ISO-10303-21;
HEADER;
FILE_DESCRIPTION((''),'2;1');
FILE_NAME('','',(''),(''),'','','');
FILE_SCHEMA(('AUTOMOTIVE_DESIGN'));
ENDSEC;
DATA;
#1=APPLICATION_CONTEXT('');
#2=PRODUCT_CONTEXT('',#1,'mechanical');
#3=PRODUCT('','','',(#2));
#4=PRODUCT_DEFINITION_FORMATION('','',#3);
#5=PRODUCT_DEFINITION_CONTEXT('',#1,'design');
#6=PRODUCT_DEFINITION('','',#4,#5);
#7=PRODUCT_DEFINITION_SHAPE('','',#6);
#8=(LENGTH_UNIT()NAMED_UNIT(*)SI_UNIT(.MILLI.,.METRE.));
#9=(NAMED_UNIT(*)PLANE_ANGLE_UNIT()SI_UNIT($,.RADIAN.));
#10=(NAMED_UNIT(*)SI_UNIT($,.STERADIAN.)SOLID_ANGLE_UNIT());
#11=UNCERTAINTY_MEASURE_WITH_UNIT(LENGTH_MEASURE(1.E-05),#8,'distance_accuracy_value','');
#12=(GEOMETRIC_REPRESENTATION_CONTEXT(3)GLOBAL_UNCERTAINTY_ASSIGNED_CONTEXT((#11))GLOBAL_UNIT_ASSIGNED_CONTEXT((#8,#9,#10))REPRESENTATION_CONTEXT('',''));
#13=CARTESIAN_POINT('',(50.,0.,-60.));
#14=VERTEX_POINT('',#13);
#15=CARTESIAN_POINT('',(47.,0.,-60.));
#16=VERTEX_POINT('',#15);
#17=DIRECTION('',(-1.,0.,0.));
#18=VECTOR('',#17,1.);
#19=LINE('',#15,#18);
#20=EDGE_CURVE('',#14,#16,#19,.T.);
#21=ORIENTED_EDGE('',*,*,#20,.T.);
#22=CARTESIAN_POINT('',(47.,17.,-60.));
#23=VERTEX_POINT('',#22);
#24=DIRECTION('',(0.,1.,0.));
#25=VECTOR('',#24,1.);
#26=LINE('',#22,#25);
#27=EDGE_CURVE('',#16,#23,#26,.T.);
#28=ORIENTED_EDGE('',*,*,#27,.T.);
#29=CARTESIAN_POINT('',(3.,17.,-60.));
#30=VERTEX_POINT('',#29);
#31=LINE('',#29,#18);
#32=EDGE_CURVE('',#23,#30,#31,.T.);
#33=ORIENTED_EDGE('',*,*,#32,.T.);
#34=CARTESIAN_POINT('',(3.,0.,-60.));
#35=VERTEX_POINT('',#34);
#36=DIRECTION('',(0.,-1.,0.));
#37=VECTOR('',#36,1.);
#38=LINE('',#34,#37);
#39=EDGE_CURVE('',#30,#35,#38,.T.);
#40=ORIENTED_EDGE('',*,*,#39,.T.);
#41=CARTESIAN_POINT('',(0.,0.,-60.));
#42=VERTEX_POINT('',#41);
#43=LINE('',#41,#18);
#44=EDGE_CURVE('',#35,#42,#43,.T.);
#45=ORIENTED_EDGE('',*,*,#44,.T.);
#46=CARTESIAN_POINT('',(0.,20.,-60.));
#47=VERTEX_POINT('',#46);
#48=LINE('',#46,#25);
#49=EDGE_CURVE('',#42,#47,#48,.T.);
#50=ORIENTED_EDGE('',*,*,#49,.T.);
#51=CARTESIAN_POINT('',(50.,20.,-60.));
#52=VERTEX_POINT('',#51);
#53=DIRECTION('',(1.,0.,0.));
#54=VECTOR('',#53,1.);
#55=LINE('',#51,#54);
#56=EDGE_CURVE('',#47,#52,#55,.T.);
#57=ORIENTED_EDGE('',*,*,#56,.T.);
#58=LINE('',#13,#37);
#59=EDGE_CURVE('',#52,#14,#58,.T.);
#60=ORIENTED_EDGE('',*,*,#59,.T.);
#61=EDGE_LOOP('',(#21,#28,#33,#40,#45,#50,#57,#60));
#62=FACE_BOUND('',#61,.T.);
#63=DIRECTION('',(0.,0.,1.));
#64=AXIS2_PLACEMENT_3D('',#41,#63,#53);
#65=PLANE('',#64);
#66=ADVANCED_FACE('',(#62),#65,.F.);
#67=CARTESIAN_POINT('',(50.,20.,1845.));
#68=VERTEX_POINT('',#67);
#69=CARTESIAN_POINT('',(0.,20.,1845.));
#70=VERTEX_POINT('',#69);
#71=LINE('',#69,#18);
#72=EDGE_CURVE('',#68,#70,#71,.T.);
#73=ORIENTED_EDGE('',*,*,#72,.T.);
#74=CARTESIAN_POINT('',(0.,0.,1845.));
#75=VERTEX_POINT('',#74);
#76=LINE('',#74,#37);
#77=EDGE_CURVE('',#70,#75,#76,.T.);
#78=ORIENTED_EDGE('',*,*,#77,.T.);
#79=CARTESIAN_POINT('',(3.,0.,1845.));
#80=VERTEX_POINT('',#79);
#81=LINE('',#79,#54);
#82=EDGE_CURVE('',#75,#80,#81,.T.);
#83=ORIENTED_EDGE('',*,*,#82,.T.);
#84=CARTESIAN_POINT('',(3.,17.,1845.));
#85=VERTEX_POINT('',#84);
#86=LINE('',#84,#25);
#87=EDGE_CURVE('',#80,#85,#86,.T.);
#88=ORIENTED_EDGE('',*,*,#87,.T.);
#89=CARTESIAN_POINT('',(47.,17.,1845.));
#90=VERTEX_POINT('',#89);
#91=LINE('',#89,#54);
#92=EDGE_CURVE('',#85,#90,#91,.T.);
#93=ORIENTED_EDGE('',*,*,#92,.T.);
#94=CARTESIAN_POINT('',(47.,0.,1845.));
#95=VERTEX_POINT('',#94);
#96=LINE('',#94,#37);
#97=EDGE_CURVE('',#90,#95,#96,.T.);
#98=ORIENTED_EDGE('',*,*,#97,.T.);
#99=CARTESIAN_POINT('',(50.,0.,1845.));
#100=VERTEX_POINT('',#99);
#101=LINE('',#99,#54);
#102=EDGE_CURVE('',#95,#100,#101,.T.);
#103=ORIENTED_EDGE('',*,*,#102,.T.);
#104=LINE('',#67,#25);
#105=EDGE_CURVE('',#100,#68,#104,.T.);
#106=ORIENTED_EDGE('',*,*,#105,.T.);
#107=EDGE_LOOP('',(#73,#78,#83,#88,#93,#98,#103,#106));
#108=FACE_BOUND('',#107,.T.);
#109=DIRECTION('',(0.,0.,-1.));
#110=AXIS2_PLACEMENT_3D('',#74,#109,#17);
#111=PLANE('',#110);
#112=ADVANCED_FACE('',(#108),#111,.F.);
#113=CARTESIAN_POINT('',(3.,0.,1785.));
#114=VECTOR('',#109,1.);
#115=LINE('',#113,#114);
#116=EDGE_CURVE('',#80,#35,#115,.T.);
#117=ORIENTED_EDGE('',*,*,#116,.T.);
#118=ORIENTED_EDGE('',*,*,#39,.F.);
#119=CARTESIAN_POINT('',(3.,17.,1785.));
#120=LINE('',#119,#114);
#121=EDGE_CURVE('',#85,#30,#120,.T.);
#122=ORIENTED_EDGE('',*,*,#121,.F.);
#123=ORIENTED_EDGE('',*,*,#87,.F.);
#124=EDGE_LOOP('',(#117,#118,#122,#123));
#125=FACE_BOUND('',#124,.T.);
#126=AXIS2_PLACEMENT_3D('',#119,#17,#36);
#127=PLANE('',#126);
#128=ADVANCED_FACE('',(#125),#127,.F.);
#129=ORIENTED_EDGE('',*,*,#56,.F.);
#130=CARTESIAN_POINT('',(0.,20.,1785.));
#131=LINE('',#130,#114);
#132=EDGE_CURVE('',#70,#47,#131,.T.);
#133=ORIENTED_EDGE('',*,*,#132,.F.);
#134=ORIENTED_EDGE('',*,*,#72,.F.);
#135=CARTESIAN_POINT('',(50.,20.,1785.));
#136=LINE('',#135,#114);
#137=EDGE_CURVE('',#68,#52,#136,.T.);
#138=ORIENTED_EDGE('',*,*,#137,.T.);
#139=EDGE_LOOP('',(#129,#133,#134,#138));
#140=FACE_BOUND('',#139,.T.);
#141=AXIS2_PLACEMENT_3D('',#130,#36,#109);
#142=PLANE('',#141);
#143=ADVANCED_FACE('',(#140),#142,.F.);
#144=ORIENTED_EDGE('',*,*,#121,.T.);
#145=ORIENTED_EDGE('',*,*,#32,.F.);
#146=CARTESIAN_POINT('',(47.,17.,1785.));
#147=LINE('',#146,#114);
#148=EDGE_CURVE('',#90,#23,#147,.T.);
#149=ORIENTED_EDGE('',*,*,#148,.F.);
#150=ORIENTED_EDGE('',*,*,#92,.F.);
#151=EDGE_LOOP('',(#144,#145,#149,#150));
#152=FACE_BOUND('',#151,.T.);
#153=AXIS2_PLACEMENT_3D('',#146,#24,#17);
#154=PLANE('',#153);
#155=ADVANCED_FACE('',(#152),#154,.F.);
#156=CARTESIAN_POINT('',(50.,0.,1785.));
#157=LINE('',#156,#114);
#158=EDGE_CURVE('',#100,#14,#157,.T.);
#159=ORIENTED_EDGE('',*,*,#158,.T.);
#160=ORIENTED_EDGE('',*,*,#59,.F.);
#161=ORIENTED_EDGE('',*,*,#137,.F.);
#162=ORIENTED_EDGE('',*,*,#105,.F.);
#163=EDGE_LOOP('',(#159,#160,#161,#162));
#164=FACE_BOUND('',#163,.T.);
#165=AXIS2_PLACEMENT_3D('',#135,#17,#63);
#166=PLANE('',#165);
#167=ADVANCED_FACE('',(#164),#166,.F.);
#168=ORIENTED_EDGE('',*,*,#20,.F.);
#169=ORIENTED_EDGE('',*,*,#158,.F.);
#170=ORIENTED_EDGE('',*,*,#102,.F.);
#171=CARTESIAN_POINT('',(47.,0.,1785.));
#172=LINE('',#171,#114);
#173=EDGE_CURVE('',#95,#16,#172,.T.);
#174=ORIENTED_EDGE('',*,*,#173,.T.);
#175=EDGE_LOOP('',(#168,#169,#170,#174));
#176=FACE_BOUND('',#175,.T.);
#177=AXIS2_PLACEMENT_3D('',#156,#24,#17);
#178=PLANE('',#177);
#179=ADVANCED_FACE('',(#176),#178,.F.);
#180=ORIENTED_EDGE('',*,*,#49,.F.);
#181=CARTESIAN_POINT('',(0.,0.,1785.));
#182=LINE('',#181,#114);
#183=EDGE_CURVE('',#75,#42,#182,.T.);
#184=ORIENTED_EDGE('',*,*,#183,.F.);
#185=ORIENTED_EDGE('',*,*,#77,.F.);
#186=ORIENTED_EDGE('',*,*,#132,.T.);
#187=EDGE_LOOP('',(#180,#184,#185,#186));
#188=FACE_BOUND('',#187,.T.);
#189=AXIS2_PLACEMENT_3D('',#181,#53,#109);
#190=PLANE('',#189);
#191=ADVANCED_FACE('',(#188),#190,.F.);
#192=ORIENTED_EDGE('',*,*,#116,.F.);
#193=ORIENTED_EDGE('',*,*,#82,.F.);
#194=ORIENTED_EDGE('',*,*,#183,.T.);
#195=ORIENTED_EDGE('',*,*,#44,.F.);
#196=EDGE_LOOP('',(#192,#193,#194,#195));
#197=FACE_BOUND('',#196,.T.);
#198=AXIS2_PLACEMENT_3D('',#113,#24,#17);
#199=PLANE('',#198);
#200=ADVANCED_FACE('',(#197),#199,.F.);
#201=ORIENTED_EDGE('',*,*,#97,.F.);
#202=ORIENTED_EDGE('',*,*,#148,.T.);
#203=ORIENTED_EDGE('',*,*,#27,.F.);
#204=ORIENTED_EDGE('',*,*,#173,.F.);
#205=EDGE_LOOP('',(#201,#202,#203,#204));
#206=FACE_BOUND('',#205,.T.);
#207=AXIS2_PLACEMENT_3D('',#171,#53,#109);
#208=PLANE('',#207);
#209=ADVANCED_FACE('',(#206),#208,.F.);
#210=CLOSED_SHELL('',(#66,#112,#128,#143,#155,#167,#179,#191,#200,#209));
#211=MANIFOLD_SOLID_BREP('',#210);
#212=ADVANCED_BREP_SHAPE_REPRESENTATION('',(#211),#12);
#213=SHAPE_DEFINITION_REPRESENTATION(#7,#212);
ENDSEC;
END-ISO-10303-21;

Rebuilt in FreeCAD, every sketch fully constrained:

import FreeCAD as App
import Part
import Sketcher


def add_polygon(sketch, points):
    """Adds a closed chain of lines whose ends are joined by coincident constraints."""
    first, n = sketch.GeometryCount, len(points)
    for a, b in zip(points, points[1:] + points[:1]):
        sketch.addGeometry(Part.LineSegment(App.Vector(*a, 0), App.Vector(*b, 0)), False)
    for i in range(n):
        sketch.addConstraint(Sketcher.Constraint("Coincident", first + i, 2, first + (i + 1) % n, 1))

doc = App.newDocument("Part")
body = doc.addObject("PartDesign::Body", "Body")

sketch1 = doc.addObject("Sketcher::SketchObject", "Sketch")
body.addObject(sketch1)
sketch1.AttachmentSupport = (doc.XY_Plane, [""])
sketch1.MapMode = "FlatFace"
add_polygon(sketch1, [(0, 20), (0, 0), (3, 0), (3, 17), (47, 17), (47, 0), (50, 0), (50, 20)])
sketch1.addConstraint(Sketcher.Constraint("Vertical", 0))
sketch1.addConstraint(Sketcher.Constraint("Horizontal", 1))
sketch1.addConstraint(Sketcher.Constraint("Vertical", 2))
sketch1.addConstraint(Sketcher.Constraint("Horizontal", 3))
sketch1.addConstraint(Sketcher.Constraint("Vertical", 4))
sketch1.addConstraint(Sketcher.Constraint("Horizontal", 5))
sketch1.addConstraint(Sketcher.Constraint("Vertical", 6))
sketch1.addConstraint(Sketcher.Constraint("Horizontal", 7))
sketch1.addConstraint(Sketcher.Constraint("Coincident", 0, 2, -1, 1))
sketch1.addConstraint(Sketcher.Constraint("PointOnObject", 4, 2, -1))
sketch1.addConstraint(Sketcher.Constraint("Equal", 1, 5))
sketch1.addConstraint(Sketcher.Constraint("DistanceX", 1, 1, 1, 2, 3.0))
sketch1.addConstraint(Sketcher.Constraint("DistanceX", 3, 1, 3, 2, 44.0))
sketch1.addConstraint(Sketcher.Constraint("DistanceY", 0, 2, 0, 1, 20.0))
sketch1.addConstraint(Sketcher.Constraint("DistanceY", 2, 1, 2, 2, 17.0))
pad1 = doc.addObject("PartDesign::Pad", "Pad")
body.addObject(pad1)
pad1.Profile = sketch1
pad1.Length = 1785

sketch2 = doc.addObject("Sketcher::SketchObject", "Sketch001")
body.addObject(sketch2)
sketch2.AttachmentSupport = (doc.XY_Plane, [""])
sketch2.MapMode = "FlatFace"
sketch2.AttachmentOffset = App.Placement(App.Vector(0, 0, 1785), App.Rotation())
add_polygon(sketch2, [(0, 20), (0, 0), (3, 0), (3, 17), (47, 17), (47, 0), (50, 0), (50, 20)])
sketch2.addConstraint(Sketcher.Constraint("Vertical", 0))
sketch2.addConstraint(Sketcher.Constraint("Horizontal", 1))
sketch2.addConstraint(Sketcher.Constraint("Vertical", 2))
sketch2.addConstraint(Sketcher.Constraint("Horizontal", 3))
sketch2.addConstraint(Sketcher.Constraint("Vertical", 4))
sketch2.addConstraint(Sketcher.Constraint("Horizontal", 5))
sketch2.addConstraint(Sketcher.Constraint("Vertical", 6))
sketch2.addConstraint(Sketcher.Constraint("Horizontal", 7))
sketch2.addConstraint(Sketcher.Constraint("Coincident", 0, 2, -1, 1))
sketch2.addConstraint(Sketcher.Constraint("PointOnObject", 4, 2, -1))
sketch2.addConstraint(Sketcher.Constraint("Equal", 1, 5))
sketch2.addConstraint(Sketcher.Constraint("DistanceX", 1, 1, 1, 2, 3.0))
sketch2.addConstraint(Sketcher.Constraint("DistanceX", 3, 1, 3, 2, 44.0))
sketch2.addConstraint(Sketcher.Constraint("DistanceY", 0, 2, 0, 1, 20.0))
sketch2.addConstraint(Sketcher.Constraint("DistanceY", 2, 1, 2, 2, 17.0))
pad2 = doc.addObject("PartDesign::Pad", "Pad001")
body.addObject(pad2)
pad2.Profile = sketch2
pad2.Length = 60

sketch3 = doc.addObject("Sketcher::SketchObject", "Sketch002")
body.addObject(sketch3)
sketch3.AttachmentSupport = (doc.XY_Plane, [""])
sketch3.MapMode = "FlatFace"
add_polygon(sketch3, [(50, 20), (50, 0), (47, 0), (47, 17), (3, 17), (3, 0), (0, 0), (0, 20)])
sketch3.addConstraint(Sketcher.Constraint("Vertical", 0))
sketch3.addConstraint(Sketcher.Constraint("Horizontal", 1))
sketch3.addConstraint(Sketcher.Constraint("Vertical", 2))
sketch3.addConstraint(Sketcher.Constraint("Horizontal", 3))
sketch3.addConstraint(Sketcher.Constraint("Vertical", 4))
sketch3.addConstraint(Sketcher.Constraint("Horizontal", 5))
sketch3.addConstraint(Sketcher.Constraint("Vertical", 6))
sketch3.addConstraint(Sketcher.Constraint("Horizontal", 7))
sketch3.addConstraint(Sketcher.Constraint("Coincident", 5, 2, -1, 1))
sketch3.addConstraint(Sketcher.Constraint("PointOnObject", 0, 2, -1))
sketch3.addConstraint(Sketcher.Constraint("Equal", 1, 5))
sketch3.addConstraint(Sketcher.Constraint("DistanceX", 1, 2, 1, 1, 3.0))
sketch3.addConstraint(Sketcher.Constraint("DistanceX", 3, 2, 3, 1, 44.0))
sketch3.addConstraint(Sketcher.Constraint("DistanceY", 0, 2, 0, 1, 20.0))
sketch3.addConstraint(Sketcher.Constraint("DistanceY", 2, 1, 2, 2, 17.0))
pad3 = doc.addObject("PartDesign::Pad", "Pad002")
body.addObject(pad3)
pad3.Profile = sketch3
pad3.Length = 60
pad3.Reversed = True

doc.recompute()
